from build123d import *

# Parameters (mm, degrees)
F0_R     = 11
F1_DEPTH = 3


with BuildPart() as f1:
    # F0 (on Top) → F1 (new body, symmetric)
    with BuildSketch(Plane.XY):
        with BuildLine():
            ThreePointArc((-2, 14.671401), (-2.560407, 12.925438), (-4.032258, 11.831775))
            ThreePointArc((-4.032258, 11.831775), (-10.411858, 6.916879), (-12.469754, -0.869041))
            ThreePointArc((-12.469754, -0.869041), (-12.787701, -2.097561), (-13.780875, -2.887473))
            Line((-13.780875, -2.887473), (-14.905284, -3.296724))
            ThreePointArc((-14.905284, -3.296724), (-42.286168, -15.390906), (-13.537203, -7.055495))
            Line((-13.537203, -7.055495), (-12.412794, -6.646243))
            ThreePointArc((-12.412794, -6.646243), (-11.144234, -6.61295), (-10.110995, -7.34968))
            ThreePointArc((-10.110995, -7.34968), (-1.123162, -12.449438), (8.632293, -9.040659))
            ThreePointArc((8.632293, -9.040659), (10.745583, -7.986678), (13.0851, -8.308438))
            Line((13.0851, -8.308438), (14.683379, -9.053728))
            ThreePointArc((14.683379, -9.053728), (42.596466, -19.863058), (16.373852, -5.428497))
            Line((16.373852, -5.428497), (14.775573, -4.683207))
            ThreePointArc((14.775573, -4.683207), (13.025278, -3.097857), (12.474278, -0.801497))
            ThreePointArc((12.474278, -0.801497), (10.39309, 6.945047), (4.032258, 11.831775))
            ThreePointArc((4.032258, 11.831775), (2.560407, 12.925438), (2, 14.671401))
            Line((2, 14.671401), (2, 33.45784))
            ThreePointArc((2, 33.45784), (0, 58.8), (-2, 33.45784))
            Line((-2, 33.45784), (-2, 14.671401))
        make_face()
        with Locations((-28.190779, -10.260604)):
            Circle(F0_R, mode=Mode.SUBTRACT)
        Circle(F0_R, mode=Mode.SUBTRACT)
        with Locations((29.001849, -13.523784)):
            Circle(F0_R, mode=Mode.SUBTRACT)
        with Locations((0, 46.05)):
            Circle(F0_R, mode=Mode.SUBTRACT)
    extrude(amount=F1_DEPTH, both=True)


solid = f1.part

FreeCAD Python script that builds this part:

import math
import FreeCAD as App
import Part
import Sketcher

V = App.Vector
Q = App.Units.Quantity

doc = App.newDocument("Part")
body = doc.addObject("PartDesign::Body", "Body")

# Sketch on XY plane
sketch1 = doc.addObject("Sketcher::SketchObject", "Sketch")
body.addObject(sketch1)
sketch1.AttachmentSupport = (doc.XY_Plane, [""])
sketch1.MapMode = "FlatFace"
sketch1.addGeometry(Part.ArcOfCircle(Part.Circle(V(-5, 14.671401, 0), V(0, 0, 1), 3), math.radians(-71.180941), math.radians(0.000007)), False)
sketch1.addGeometry(Part.ArcOfCircle(Part.Circle(V(0, 0, 0), V(0, 0, 1), 12.5), math.radians(108.819063), math.radians(183.986608)), False)
sketch1.addGeometry(Part.ArcOfCircle(Part.Circle(V(-14.464917, -1.008086, 0), V(0, 0, 1), 2.000002), math.radians(-69.999979), math.radians(3.986565)), False)
sketch1.addGeometry(Part.LineSegment(V(-13.780875, -2.887473, 0), V(-14.905284, -3.296724, 0)), False)
sketch1.addGeometry(Part.ArcOfCircle(Part.Circle(V(-28.190778, -10.260605, 0), V(0, 0, 1), 15), math.radians(27.66226), math.radians(372.337746)), False)
sketch1.addGeometry(Part.LineSegment(V(-13.537203, -7.055495, 0), V(-12.412794, -6.646243, 0)), False)
sketch1.addGeometry(Part.ArcOfCircle(Part.Circle(V(-11.728753, -8.525625, 0), V(0, 0, 1), 1.999997), math.radians(36.013323), math.radians(110.000044)), False)
sketch1.addGeometry(Part.ArcOfCircle(Part.Circle(V(0, 0.000001, 0), V(0, 0, 1), 12.500001), math.radians(-143.986601), math.radians(-46.32369)), False)
sketch1.addGeometry(Part.ArcOfCircle(Part.Circle(V(11.394627, -11.93367, 0), V(0, 0, 1), 4), math.radians(65.000011), math.radians(133.676319)), False)
sketch1.addGeometry(Part.LineSegment(V(13.0851, -8.308438, 0), V(14.683379, -9.053728, 0)), False)
sketch1.addGeometry(Part.ArcOfCircle(Part.Circle(V(29.001849, -13.523785, 0), V(0, 0, 1), 15), math.radians(162.662255), math.radians(507.337744)), False)
sketch1.addGeometry(Part.LineSegment(V(16.373852, -5.428497, 0), V(14.775573, -4.683207, 0)), False)
sketch1.addGeometry(Part.ArcOfCircle(Part.Circle(V(16.466045, -1.057978, 0), V(0, 0, 1), 3.999998), math.radians(176.323662), math.radians(245.000009)), False)
sketch1.addGeometry(Part.ArcOfCircle(Part.Circle(V(-0.000001, -0.000001, 0), V(0, 0, 1), 12.500002), math.radians(-3.676308), math.radians(71.180933)), False)
sketch1.addGeometry(Part.ArcOfCircle(Part.Circle(V(5, 14.671401, 0), V(0, 0, 1), 3), math.radians(179.999993), math.radians(251.180941)), False)
sketch1.addGeometry(Part.LineSegment(V(2, 14.671401, 0), V(2, 33.45784, 0)), False)
sketch1.addGeometry(Part.ArcOfCircle(Part.Circle(V(0, 46.05, 0), V(0, 0, 1), 12.75), math.radians(-80.975155), math.radians(260.975155)), False)
sketch1.addGeometry(Part.LineSegment(V(-2, 33.45784, 0), V(-2, 14.671401, 0)), False)
sketch1.addGeometry(Part.Circle(V(-28.190779, -10.260604, 0), V(0, 0, 1), 11), False)
sketch1.addGeometry(Part.Circle(V(0, 0, 0), V(0, 0, 1), 11), False)
sketch1.addGeometry(Part.Circle(V(29.001849, -13.523784, 0), V(0, 0, 1), 11), False)
sketch1.addGeometry(Part.Circle(V(0, 46.05, 0), V(0, 0, 1), 11), False)
sketch1.addConstraint(Sketcher.Constraint("Tangent", 0, 1, 1, 1))
sketch1.addConstraint(Sketcher.Constraint("Tangent", 1, 2, 2, 2))
sketch1.addConstraint(Sketcher.Constraint("Tangent", 2, 1, 3, 1))
sketch1.addConstraint(Sketcher.Constraint("Coincident", 3, 2, 4, 1))
sketch1.addConstraint(Sketcher.Constraint("Coincident", 4, 2, 5, 1))
sketch1.addConstraint(Sketcher.Constraint("Tangent", 5, 2, 6, 2))
sketch1.addConstraint(Sketcher.Constraint("Tangent", 6, 1, 7, 1))
sketch1.addConstraint(Sketcher.Constraint("Tangent", 7, 2, 8, 2))
sketch1.addConstraint(Sketcher.Constraint("Tangent", 8, 1, 9, 1))
sketch1.addConstraint(Sketcher.Constraint("Coincident", 9, 2, 10, 1))
sketch1.addConstraint(Sketcher.Constraint("Coincident", 10, 2, 11, 1))
sketch1.addConstraint(Sketcher.Constraint("Tangent", 11, 2, 12, 2))
sketch1.addConstraint(Sketcher.Constraint("Tangent", 12, 1, 13, 1))
sketch1.addConstraint(Sketcher.Constraint("Tangent", 13, 2, 14, 2))
sketch1.addConstraint(Sketcher.Constraint("Tangent", 14, 1, 15, 1))
sketch1.addConstraint(Sketcher.Constraint("Coincident", 15, 2, 16, 1))
sketch1.addConstraint(Sketcher.Constraint("Coincident", 16, 2, 17, 1))
sketch1.addConstraint(Sketcher.Constraint("Tangent", 17, 2, 0, 2))
sketch1.addConstraint(Sketcher.Constraint("Vertical", 15))
sketch1.addConstraint(Sketcher.Constraint("Vertical", 17))
sketch1.addConstraint(Sketcher.Constraint("Coincident", 1, 3, -1, 1))
sketch1.addConstraint(Sketcher.Constraint("Coincident", 7, 3, -1, 1))
sketch1.addConstraint(Sketcher.Constraint("Coincident", 13, 3, -1, 1))
sketch1.addConstraint(Sketcher.Constraint("Coincident", 19, 3, -1, 1))
sketch1.addConstraint(Sketcher.Constraint("Coincident", 18, 3, 4, 3))
sketch1.addConstraint(Sketcher.Constraint("Coincident", 20, 3, 10, 3))
sketch1.addConstraint(Sketcher.Constraint("Coincident", 21, 3, 16, 3))
sketch1.addConstraint(Sketcher.Constraint("Equal", 1, 7))
sketch1.addConstraint(Sketcher.Constraint("Equal", 4, 10))
sketch1.addConstraint(Sketcher.Constraint("Equal", 7, 13))
sketch1.addConstraint(Sketcher.Constraint("Equal", 0, 14))
sketch1.addConstraint(Sketcher.Constraint("Equal", 18, 19))
sketch1.addConstraint(Sketcher.Constraint("Equal", 19, 20))
sketch1.addConstraint(Sketcher.Constraint("Equal", 20, 21))
sketch1.addConstraint(Sketcher.Constraint("Symmetric", 15, 2, 16, 2, -2))
sketch1.addConstraint(Sketcher.Constraint("Parallel", 3, 5))
sketch1.addConstraint(Sketcher.Constraint("Parallel", 9, 11))
sketch1.addConstraint(Sketcher.Constraint("Equal", 3, 5))
sketch1.addConstraint(Sketcher.Constraint("Equal", 9, 11))
sketch1.addConstraint(Sketcher.Constraint("Diameter", 18, 22.0))
sketch1.addConstraint(Sketcher.Constraint("Radius", 0, 3.0))
sketch1.addConstraint(Sketcher.Constraint("Radius", 2, 2.000002))
sketch1.addConstraint(Sketcher.Constraint("Radius", 4, 15.0))
sketch1.addConstraint(Sketcher.Constraint("Radius", 8, 4.0))
sketch1.addConstraint(Sketcher.Constraint("Radius", 1, 12.5))
sketch1.addConstraint(Sketcher.Constraint("Angle", 3, Q("-160.000018 deg")))
sketch1.addConstraint(Sketcher.Constraint("Angle", 9, Q("-25.000008 deg")))
sketch1.addConstraint(Sketcher.Constraint("Radius", 16, 12.75))
sketch1.addConstraint(Sketcher.Constraint("DistanceX", 0, 3, -1, 1, 5.0))
sketch1.addConstraint(Sketcher.Constraint("DistanceY", -1, 1, 16, 3, 46.05))
sketch1.addConstraint(Sketcher.Constraint("Radius", 6, 1.999997))
sketch1.addConstraint(Sketcher.Constraint("Radius", 12, 3.999998))
sketch1.addConstraint(Sketcher.Constraint("DistanceX", 1, 2, 6, 3, 0.741001))
sketch1.addConstraint(Sketcher.Constraint("DistanceY", 10, 2, 12, 1, 4.627))
sketch1.addConstraint(Sketcher.Constraint("DistanceX", -1, 1, 8, 1, 13.0851))
sketch1.addConstraint(Sketcher.Constraint("DistanceY", 6, 3, 3, 2, 5.228901))
sketch1.addConstraint(Sketcher.Constraint("DistanceX", 12, 1, 9, 2, 2.209101))
sketch1.addConstraint(Sketcher.Constraint("Distance", 3, 1.196571))
pad1 = doc.addObject("PartDesign::Pad", "Pad")
body.addObject(pad1)
pad1.Profile = sketch1
pad1.Length = 6
pad1.Midplane = True

doc.recompute()
